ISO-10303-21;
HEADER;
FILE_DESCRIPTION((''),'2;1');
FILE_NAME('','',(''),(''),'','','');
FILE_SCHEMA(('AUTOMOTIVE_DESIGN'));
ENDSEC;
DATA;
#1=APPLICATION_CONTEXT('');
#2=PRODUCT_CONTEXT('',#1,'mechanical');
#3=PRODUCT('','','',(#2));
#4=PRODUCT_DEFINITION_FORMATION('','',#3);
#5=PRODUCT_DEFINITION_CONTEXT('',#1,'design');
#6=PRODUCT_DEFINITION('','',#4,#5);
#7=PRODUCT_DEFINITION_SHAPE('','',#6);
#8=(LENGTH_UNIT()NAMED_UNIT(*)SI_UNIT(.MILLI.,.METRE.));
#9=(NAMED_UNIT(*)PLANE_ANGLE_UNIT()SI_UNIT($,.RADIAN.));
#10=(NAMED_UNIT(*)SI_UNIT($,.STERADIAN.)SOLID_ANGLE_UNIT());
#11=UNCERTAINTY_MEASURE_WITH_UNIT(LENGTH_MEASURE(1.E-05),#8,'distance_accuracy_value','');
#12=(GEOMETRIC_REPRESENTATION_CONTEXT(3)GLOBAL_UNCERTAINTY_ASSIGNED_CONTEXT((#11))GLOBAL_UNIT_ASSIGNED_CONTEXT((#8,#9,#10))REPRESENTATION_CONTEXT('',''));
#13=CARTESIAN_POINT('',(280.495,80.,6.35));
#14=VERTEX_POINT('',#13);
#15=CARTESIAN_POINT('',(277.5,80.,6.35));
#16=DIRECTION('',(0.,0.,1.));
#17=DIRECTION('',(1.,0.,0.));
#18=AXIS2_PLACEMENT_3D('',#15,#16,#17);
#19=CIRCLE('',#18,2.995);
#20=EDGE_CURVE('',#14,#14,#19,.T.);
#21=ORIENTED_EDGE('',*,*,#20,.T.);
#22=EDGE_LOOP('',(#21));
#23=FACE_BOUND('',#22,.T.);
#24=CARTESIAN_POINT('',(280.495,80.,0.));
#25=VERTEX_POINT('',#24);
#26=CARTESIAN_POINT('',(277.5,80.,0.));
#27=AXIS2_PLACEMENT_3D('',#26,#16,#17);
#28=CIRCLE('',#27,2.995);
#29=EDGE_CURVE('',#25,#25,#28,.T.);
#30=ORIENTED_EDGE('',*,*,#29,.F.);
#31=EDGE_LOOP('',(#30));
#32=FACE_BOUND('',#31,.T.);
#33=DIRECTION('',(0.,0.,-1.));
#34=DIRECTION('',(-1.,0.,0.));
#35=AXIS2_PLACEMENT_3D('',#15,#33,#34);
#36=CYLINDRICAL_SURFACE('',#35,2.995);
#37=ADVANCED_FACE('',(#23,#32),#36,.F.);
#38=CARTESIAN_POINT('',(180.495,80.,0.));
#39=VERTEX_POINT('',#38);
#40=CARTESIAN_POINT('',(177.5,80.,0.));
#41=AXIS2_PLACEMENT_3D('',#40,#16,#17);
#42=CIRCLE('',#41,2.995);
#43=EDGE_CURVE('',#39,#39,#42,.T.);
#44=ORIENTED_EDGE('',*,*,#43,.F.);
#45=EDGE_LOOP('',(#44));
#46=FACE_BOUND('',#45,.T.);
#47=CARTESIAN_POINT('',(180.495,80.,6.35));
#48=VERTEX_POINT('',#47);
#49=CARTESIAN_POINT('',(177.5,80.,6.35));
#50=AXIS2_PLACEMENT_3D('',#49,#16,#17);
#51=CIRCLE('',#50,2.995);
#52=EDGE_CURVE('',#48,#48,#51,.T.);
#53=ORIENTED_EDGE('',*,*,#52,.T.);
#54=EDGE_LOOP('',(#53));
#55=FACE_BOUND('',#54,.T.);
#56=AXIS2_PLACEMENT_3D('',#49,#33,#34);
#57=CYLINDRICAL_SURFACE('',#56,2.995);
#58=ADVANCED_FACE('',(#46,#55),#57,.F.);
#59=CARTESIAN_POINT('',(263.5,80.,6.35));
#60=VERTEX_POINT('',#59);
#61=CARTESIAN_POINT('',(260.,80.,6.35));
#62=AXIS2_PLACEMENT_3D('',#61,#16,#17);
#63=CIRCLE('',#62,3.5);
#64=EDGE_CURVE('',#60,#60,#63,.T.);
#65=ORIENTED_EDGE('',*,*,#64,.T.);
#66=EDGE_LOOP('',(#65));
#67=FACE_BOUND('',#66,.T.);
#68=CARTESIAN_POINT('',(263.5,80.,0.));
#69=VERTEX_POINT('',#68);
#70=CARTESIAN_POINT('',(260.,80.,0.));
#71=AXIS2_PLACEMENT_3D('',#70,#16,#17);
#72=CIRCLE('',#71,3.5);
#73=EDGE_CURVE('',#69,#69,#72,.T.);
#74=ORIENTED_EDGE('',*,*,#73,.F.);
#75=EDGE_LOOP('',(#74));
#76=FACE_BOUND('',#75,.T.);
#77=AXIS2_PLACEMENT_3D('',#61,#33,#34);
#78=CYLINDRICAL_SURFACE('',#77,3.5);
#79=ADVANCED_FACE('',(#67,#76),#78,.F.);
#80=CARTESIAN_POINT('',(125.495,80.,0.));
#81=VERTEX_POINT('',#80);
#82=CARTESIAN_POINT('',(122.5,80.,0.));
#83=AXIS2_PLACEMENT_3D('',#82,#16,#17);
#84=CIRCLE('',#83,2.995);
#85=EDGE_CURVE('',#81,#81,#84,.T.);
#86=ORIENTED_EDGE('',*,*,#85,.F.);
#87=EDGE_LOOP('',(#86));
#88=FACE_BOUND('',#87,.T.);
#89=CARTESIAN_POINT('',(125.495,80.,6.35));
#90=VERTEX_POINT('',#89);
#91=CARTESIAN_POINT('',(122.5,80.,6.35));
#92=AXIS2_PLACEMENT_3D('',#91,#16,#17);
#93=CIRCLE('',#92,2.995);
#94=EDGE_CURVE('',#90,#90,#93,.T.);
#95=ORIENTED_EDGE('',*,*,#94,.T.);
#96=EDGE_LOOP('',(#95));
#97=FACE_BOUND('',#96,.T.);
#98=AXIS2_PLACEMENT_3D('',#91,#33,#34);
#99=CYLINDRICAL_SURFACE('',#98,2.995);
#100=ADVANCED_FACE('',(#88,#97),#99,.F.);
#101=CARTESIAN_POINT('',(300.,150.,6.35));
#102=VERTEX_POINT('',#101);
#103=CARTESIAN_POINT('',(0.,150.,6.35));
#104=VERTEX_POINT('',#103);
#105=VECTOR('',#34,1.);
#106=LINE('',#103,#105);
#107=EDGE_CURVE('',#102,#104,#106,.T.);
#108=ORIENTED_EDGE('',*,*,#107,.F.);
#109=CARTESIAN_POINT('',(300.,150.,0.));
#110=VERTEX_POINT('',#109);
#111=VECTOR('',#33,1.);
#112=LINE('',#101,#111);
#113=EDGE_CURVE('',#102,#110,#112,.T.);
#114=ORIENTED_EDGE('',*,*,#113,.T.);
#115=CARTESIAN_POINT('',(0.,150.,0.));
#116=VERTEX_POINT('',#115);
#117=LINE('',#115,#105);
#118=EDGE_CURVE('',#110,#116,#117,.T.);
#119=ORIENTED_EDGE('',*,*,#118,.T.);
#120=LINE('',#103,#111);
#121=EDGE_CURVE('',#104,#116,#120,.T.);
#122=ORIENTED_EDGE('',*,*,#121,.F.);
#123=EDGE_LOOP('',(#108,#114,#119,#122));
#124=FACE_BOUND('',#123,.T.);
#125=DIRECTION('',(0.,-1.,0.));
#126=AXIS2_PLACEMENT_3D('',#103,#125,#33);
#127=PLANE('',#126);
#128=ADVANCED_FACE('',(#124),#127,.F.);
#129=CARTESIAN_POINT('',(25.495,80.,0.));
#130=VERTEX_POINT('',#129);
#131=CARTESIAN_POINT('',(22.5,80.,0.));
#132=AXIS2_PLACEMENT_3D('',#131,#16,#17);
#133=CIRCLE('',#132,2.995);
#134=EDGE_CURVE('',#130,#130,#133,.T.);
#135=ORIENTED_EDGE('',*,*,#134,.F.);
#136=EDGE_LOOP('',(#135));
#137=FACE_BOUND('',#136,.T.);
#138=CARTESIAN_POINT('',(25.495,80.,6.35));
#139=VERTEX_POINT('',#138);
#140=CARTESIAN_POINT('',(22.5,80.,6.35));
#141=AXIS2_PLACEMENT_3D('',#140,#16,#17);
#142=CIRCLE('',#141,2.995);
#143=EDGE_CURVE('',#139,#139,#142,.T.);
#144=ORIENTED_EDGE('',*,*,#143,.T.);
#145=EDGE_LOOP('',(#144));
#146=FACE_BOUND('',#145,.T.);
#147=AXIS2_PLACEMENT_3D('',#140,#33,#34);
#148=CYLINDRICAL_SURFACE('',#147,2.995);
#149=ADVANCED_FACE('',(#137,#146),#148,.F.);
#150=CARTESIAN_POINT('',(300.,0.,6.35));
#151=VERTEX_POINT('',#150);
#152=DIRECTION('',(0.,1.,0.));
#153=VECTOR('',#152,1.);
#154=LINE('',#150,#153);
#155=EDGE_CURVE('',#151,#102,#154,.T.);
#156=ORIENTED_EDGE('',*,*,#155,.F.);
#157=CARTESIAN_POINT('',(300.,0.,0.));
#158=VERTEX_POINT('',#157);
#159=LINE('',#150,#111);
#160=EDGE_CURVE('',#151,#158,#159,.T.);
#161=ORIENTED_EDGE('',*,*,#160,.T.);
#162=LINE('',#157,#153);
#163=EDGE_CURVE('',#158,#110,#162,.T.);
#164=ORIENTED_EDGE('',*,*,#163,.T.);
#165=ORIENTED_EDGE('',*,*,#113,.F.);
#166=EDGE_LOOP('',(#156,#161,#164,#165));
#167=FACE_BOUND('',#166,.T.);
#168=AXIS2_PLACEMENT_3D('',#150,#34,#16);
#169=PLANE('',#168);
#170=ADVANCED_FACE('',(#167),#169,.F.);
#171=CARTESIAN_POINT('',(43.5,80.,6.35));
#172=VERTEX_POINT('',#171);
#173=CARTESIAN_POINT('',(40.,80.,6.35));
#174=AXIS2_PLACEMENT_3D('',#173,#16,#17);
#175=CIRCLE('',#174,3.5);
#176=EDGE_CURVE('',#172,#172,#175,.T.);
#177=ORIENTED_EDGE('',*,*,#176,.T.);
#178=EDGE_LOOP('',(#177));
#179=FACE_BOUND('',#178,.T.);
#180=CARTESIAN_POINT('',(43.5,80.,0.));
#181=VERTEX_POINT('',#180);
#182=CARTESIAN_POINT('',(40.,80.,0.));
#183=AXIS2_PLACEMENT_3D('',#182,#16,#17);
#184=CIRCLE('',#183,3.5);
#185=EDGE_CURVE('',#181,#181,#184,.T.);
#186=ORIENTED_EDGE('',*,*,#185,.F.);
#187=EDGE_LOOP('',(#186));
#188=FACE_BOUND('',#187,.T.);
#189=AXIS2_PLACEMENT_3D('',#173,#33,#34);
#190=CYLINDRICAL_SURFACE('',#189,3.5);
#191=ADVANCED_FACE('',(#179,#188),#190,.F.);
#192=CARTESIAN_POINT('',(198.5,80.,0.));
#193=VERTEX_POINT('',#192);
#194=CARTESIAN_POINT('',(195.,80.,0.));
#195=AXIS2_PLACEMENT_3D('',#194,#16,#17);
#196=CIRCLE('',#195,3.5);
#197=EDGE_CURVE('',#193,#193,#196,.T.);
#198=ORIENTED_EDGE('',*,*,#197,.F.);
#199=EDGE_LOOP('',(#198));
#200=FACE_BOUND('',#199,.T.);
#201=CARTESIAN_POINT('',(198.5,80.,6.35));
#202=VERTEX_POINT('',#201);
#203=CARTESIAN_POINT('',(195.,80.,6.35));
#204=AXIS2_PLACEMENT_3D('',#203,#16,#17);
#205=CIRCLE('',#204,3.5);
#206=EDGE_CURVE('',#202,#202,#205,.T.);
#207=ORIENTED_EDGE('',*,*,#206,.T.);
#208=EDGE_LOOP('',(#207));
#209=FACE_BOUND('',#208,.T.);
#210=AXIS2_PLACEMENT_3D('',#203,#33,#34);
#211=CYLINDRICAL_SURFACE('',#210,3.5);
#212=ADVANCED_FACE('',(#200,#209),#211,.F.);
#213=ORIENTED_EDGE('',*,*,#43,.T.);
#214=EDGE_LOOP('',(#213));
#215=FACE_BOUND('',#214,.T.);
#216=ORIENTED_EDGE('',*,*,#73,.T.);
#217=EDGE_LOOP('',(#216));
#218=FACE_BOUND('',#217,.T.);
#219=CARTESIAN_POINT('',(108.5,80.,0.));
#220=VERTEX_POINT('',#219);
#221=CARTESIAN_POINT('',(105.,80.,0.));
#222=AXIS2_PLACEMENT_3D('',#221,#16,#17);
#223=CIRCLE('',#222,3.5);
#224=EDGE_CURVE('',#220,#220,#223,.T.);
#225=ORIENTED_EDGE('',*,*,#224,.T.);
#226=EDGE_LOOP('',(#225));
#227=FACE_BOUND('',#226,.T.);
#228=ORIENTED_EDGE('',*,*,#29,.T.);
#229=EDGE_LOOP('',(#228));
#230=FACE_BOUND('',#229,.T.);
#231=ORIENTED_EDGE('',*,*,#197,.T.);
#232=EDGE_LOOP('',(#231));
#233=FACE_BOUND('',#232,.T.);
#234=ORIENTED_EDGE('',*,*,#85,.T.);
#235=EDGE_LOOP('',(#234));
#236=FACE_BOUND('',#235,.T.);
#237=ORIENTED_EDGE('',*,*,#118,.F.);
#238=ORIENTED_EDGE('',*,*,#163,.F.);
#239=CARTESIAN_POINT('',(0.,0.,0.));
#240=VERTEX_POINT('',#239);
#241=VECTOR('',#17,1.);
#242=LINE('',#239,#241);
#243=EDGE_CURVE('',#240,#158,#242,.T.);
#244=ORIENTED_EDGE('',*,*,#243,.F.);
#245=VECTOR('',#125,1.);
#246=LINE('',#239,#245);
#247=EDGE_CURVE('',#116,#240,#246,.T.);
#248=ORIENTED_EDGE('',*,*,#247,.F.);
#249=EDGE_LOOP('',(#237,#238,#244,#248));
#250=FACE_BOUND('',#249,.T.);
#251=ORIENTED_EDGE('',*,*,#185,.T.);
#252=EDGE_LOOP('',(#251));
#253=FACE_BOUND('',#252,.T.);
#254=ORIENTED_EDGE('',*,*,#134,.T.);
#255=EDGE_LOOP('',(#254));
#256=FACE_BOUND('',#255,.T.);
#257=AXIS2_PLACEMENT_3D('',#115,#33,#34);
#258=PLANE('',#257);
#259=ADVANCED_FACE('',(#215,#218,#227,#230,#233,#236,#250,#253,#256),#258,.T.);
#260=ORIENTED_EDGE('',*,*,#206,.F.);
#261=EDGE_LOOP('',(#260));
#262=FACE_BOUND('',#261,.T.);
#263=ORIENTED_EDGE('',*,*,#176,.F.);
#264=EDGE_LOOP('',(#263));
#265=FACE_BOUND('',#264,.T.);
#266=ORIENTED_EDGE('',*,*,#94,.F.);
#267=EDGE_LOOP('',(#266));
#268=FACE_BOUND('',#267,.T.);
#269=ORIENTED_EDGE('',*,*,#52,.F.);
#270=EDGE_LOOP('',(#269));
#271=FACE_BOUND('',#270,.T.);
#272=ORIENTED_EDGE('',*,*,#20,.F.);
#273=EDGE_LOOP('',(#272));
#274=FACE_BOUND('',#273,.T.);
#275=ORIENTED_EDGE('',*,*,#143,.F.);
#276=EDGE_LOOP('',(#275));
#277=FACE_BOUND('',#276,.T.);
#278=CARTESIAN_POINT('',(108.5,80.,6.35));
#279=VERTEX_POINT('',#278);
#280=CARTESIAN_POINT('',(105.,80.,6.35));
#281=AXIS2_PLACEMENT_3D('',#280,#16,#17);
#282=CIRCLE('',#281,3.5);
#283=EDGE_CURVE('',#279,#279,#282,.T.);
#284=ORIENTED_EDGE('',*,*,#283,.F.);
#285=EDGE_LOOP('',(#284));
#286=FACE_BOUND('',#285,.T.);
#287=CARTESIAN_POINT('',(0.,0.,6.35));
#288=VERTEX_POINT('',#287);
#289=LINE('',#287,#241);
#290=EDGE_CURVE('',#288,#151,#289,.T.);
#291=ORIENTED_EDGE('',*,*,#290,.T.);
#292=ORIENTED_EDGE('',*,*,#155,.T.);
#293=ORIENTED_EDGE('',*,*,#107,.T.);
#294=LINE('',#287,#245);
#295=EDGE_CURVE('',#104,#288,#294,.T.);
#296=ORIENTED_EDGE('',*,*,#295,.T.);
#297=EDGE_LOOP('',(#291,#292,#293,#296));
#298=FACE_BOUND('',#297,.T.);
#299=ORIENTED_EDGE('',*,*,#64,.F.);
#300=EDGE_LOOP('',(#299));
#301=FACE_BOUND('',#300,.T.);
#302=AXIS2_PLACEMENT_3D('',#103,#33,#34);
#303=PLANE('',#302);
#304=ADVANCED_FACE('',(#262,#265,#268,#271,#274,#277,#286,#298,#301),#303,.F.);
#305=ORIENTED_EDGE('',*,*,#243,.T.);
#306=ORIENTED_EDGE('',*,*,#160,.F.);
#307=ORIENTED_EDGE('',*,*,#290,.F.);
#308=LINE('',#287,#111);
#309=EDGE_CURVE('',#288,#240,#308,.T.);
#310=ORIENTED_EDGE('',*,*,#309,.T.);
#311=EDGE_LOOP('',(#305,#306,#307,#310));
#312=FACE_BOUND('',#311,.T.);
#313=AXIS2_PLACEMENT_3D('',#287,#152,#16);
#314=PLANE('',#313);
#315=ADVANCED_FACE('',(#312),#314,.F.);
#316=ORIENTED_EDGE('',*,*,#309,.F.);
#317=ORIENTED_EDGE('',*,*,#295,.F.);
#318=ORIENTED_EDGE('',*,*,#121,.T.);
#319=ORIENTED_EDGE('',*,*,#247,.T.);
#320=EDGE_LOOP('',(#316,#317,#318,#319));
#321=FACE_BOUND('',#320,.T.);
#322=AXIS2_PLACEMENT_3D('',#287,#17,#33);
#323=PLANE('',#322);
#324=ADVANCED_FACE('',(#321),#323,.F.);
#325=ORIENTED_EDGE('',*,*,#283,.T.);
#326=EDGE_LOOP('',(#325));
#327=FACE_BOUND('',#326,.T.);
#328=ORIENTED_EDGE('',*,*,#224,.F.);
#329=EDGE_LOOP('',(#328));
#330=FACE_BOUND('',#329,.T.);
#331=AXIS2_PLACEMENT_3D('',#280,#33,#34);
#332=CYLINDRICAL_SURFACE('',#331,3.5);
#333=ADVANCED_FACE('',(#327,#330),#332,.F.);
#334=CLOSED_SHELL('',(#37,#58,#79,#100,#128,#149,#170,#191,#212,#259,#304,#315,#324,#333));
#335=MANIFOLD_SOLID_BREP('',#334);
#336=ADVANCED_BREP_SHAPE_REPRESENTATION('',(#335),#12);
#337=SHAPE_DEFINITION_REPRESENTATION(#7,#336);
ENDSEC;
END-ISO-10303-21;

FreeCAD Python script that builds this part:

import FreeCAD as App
import Part
import Sketcher

V = App.Vector
Q = App.Units.Quantity

doc = App.newDocument("Part")
body = doc.addObject("PartDesign::Body", "Body")

# Sketch on XY plane
sketch1 = doc.addObject("Sketcher::SketchObject", "Sketch")
body.addObject(sketch1)
sketch1.AttachmentSupport = (doc.XY_Plane, [""])
sketch1.MapMode = "FlatFace"
sketch1.addGeometry([
    Part.LineSegment(V(0, 150, 0), V(0, 0, 0)),  # 0
    Part.LineSegment(V(0, 0, 0), V(300, 0, 0)),  # 1
    Part.LineSegment(V(300, 0, 0), V(300, 150, 0)),  # 2
    Part.LineSegment(V(300, 150, 0), V(0, 150, 0)),  # 3
    Part.Circle(V(22.5, 80, 0), V(0, 0, 1), 3),  # 4
    Part.Circle(V(40, 80, 0), V(0, 0, 1), 3.5),  # 5
    Part.Circle(V(105, 80, 0), V(0, 0, 1), 3.5),  # 6
    Part.Circle(V(122.5, 80, 0), V(0, 0, 1), 3),  # 7
    Part.Circle(V(177.5, 80, 0), V(0, 0, 1), 3),  # 8
    Part.Circle(V(195, 80, 0), V(0, 0, 1), 3.5),  # 9
    Part.Circle(V(260, 80, 0), V(0, 0, 1), 3.5),  # 10
    Part.Circle(V(277.5, 80, 0), V(0, 0, 1), 3),  # 11
], False)
sketch1.addConstraint([
    Sketcher.Constraint("Coincident", 0, 2, 1, 1),
    Sketcher.Constraint("Coincident", 1, 2, 2, 1),
    Sketcher.Constraint("Coincident", 2, 2, 3, 1),
    Sketcher.Constraint("Coincident", 3, 2, 0, 1),
    Sketcher.Constraint("Vertical", 0),
    Sketcher.Constraint("Horizontal", 1),
    Sketcher.Constraint("Vertical", 2),
    Sketcher.Constraint("Horizontal", 3),
    Sketcher.Constraint("Coincident", 0, 2, -1, 1),
    Sketcher.Constraint("Equal", 5, 6),
    Sketcher.Constraint("Equal", 4, 7),
    Sketcher.Constraint("Equal", 7, 8),
    Sketcher.Constraint("Equal", 6, 9),
    Sketcher.Constraint("Equal", 9, 10),
    Sketcher.Constraint("Equal", 8, 11),
    Sketcher.Constraint("Horizontal", 4, 3, 5, 3),
    Sketcher.Constraint("Horizontal", 5, 3, 6, 3),
    Sketcher.Constraint("Horizontal", 6, 3, 7, 3),
    Sketcher.Constraint("Horizontal", 7, 3, 8, 3),
    Sketcher.Constraint("Horizontal", 8, 3, 9, 3),
    Sketcher.Constraint("Horizontal", 9, 3, 10, 3),
    Sketcher.Constraint("Horizontal", 10, 3, 11, 3),
    Sketcher.Constraint("Diameter", 5, Q("7 mm")),
    Sketcher.Constraint("Diameter", 4, Q("5.99 mm")),
    Sketcher.Constraint("DistanceX", 1, 1, 1, 2, Q("300 mm")),
    Sketcher.Constraint("DistanceY", 0, 2, 0, 1, Q("150 mm")),
    Sketcher.Constraint("DistanceY", -1, 1, 4, 3, Q("80 mm")),
    Sketcher.Constraint("DistanceX", -1, 1, 5, 3, Q("40 mm")),
    Sketcher.Constraint("DistanceX", -1, 1, 6, 3, Q("105 mm")),
    Sketcher.Constraint("DistanceX", -1, 1, 9, 3, Q("195 mm")),
    Sketcher.Constraint("DistanceX", -1, 1, 10, 3, Q("260 mm")),
    Sketcher.Constraint("DistanceX", 4, 3, 7, 3, Q("100 mm")),
    Sketcher.Constraint("DistanceX", 7, 3, 8, 3, Q("55 mm")),
    Sketcher.Constraint("DistanceX", 8, 3, 11, 3, Q("100 mm")),
    Sketcher.Constraint("DistanceX", -1, 1, 4, 3, Q("22.5 mm")),
])
pad1 = doc.addObject("PartDesign::Pad", "Pad")
body.addObject(pad1)
pad1.Profile = sketch1
pad1.Length = 6.35

doc.recompute()
